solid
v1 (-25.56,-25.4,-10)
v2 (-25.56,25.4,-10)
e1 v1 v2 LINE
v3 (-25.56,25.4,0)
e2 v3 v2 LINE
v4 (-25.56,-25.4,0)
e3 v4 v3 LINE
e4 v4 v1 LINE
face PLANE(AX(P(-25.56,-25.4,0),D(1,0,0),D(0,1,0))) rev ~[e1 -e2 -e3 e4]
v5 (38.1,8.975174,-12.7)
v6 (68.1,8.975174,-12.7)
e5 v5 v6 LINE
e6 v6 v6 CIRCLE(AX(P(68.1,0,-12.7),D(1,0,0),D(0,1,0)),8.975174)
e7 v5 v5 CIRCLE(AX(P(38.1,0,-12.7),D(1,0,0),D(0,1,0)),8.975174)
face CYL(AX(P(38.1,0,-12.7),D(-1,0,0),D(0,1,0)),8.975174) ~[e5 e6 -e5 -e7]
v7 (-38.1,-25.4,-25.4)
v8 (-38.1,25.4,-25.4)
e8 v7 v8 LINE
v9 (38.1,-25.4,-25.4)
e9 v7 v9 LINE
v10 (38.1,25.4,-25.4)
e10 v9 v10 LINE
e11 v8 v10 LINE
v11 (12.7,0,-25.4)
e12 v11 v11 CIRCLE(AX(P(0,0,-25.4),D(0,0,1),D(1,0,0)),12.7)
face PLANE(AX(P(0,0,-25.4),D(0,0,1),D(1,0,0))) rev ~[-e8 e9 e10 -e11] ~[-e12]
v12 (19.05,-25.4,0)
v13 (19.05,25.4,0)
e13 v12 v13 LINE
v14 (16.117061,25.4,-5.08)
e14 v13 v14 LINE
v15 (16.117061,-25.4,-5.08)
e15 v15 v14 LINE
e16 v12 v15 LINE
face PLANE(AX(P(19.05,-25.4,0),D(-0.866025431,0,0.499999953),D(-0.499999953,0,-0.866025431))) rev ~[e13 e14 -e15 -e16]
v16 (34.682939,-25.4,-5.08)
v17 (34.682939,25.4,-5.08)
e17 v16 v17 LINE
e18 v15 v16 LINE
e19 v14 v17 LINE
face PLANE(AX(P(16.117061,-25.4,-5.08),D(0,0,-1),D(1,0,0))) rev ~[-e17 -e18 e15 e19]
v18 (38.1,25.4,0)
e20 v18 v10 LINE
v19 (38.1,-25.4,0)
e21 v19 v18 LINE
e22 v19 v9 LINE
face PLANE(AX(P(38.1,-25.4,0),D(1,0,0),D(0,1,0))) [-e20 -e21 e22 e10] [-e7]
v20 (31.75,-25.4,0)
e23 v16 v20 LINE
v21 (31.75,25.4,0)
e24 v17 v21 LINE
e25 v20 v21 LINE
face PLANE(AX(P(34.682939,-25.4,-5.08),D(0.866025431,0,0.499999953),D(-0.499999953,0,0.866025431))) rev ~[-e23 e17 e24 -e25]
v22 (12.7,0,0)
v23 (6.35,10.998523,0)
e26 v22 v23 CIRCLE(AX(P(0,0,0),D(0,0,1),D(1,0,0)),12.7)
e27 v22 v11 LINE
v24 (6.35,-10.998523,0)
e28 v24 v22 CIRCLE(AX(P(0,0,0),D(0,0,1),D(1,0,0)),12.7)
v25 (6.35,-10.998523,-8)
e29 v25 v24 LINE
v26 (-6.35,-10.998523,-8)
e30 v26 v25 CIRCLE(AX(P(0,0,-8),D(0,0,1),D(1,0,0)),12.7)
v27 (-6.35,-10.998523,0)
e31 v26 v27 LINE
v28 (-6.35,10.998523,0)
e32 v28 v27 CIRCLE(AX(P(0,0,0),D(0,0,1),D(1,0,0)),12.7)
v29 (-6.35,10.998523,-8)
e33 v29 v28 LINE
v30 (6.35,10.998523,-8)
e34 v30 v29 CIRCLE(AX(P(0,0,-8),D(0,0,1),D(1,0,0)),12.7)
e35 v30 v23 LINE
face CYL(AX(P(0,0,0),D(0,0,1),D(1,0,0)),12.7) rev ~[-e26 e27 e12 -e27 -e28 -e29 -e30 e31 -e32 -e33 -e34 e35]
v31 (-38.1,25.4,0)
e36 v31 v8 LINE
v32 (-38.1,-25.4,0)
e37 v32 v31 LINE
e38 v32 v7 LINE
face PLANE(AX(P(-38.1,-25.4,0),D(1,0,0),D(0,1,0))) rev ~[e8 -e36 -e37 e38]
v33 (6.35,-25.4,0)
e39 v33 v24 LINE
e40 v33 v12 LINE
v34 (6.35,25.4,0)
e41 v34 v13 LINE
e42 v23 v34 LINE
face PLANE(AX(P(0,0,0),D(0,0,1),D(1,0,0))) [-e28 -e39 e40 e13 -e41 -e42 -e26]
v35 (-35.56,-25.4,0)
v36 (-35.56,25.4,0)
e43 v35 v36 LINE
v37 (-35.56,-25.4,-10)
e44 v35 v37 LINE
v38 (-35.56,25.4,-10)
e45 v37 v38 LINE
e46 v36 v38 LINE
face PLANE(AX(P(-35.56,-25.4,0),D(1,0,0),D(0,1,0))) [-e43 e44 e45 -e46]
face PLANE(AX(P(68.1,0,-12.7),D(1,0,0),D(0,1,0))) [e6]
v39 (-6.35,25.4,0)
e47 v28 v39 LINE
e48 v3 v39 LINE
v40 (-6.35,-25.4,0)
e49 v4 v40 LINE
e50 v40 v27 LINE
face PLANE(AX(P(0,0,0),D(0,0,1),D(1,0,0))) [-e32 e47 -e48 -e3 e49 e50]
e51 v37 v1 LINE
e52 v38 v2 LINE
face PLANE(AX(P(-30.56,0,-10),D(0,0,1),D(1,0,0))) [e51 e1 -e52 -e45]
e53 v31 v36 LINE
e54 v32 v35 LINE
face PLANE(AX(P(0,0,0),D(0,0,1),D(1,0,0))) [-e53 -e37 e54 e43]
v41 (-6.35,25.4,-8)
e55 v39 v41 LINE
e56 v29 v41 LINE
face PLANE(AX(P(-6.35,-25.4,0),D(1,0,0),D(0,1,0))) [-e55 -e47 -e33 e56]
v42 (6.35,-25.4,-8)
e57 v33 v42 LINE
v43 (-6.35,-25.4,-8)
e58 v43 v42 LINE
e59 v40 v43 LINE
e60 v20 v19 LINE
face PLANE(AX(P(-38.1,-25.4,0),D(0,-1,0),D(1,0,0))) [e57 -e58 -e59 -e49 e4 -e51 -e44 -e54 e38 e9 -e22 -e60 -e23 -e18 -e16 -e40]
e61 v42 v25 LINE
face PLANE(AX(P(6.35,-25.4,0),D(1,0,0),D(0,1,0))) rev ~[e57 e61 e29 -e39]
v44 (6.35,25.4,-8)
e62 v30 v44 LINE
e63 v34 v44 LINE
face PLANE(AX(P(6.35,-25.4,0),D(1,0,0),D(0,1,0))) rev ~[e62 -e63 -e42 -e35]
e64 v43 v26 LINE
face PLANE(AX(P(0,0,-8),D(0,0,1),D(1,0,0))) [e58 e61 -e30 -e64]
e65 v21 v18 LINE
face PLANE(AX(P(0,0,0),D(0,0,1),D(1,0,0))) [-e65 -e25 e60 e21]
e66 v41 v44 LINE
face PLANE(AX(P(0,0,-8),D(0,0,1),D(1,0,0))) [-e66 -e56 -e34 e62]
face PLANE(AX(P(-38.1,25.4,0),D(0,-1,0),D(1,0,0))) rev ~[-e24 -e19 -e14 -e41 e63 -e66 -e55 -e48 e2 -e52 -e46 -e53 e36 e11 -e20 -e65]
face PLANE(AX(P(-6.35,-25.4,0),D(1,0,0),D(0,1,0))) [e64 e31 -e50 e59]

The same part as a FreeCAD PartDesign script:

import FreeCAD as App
import Part
import Sketcher

V = App.Vector
Q = App.Units.Quantity


def add_polygon(sketch, points):
    """Adds a closed chain of lines whose ends are joined by coincident constraints."""
    first, n = sketch.GeometryCount, len(points)
    for a, b in zip(points, points[1:] + points[:1]):
        sketch.addGeometry(Part.LineSegment(App.Vector(*a, 0), App.Vector(*b, 0)), False)
    for i in range(n):
        sketch.addConstraint(Sketcher.Constraint("Coincident", first + i, 2, first + (i + 1) % n, 1))

doc = App.newDocument("Part")
body = doc.addObject("PartDesign::Body", "Body")

# Sketch on XY plane
sketch1 = body.newObject("Sketcher::SketchObject", "Sketch")
sketch1.AttachmentSupport = (doc.getObject("XY_Plane"), [""])
sketch1.MapMode = "FlatFace"
add_polygon(sketch1, [(-38.1, 25.4), (-38.1, -25.4), (38.1, -25.4), (38.1, 25.4)])  # lines 0-3
sketch1.addGeometry(Part.Circle(V(0, 0, 0), V(0, 0, 1), 12.7), False)  # 4
sketch1.addConstraint([
    Sketcher.Constraint("Vertical", 0),
    Sketcher.Constraint("Horizontal", 1),
    Sketcher.Constraint("Vertical", 2),
    Sketcher.Constraint("Horizontal", 3),
    Sketcher.Constraint("Coincident", 4, 3, -1, 1),
    Sketcher.Constraint("Symmetric", 0, 2, 2, 2, -1, 1),
    Sketcher.Constraint("Diameter", 4, Q("1 in")),
    Sketcher.Constraint("DistanceX", 1, 1, 1, 2, Q("3 in")),
    Sketcher.Constraint("DistanceY", 0, 2, 0, 1, Q("2 in")),
])
pad1 = body.newObject("PartDesign::Pad", "Pad")
pad1.Profile = sketch1
pad1.Length = Q("1 in")
pad1.Reversed = True

# Sketch on XY plane
sketch2 = body.newObject("Sketcher::SketchObject", "Sketch001")
sketch2.AttachmentSupport = (doc.getObject("XY_Plane"), [""])
sketch2.MapMode = "FlatFace"
add_polygon(sketch2, [(-35.56, 25.4), (-35.56, -25.4), (-25.56, -25.4), (-25.56, 25.4)])  # lines 0-3
sketch2.addConstraint([
    Sketcher.Constraint("Vertical", 0),
    Sketcher.Constraint("Horizontal", 1),
    Sketcher.Constraint("Vertical", 2),
    Sketcher.Constraint("Horizontal", 3),
    Sketcher.Constraint("DistanceY", 0, 2, 0, 1, Q("2 in")),
    Sketcher.Constraint("DistanceY", 0, 2, -1, 1, Q("1 in")),
    Sketcher.Constraint("DistanceX", 0, 2, -1, 1, Q("1.4 in")),
    Sketcher.Constraint("DistanceX", 1, 1, 1, 2, Q("10 mm")),
])
pocket1 = body.newObject("PartDesign::Pocket", "Pocket")
pocket1.Profile = sketch2
pocket1.Length = 10

# Sketch on XY plane
sketch3 = body.newObject("Sketcher::SketchObject", "Sketch002")
sketch3.AttachmentSupport = (doc.getObject("XY_Plane"), [""])
sketch3.MapMode = "FlatFace"
add_polygon(sketch3, [(-6.35, 25.4), (-6.35, -25.4), (6.35, -25.4), (6.35, 25.4)])  # lines 0-3
sketch3.addConstraint([
    Sketcher.Constraint("Vertical", 0),
    Sketcher.Constraint("Horizontal", 1),
    Sketcher.Constraint("Vertical", 2),
    Sketcher.Constraint("Horizontal", 3),
    Sketcher.Constraint("Symmetric", 0, 2, 2, 2, -1, 1),
    Sketcher.Constraint("DistanceY", 0, 2, 0, 1, Q("2 in")),
    Sketcher.Constraint("DistanceX", 1, 1, 1, 2, Q("0.5 in")),
])
pocket2 = body.newObject("PartDesign::Pocket", "Pocket001")
pocket2.Profile = sketch3
pocket2.Length = 8

# Sketch on YZ plane
sketch4 = body.newObject("Sketcher::SketchObject", "Sketch003")
sketch4.AttachmentSupport = (doc.getObject("YZ_Plane"), [""])
sketch4.MapMode = "FlatFace"
sketch4.AttachmentOffset = App.Placement(V(0, 0, 1.5 * 25.4), App.Rotation())
sketch4.addGeometry(Part.Circle(V(0, -12.7, 0), V(0, 0, 1), 8.975174), False)
sketch4.addConstraint([
    Sketcher.Constraint("PointOnObject", 0, 3, -2),
    Sketcher.Constraint("DistanceY", 0, 3, -1, 1, Q("0.5 in")),
    Sketcher.Constraint("Diameter", 0, Q("17.950348 mm")),
])
pad2 = body.newObject("PartDesign::Pad", "Pad001")
pad2.Profile = sketch4
pad2.Length = 30

# Sketch on XZ plane
sketch5 = body.newObject("Sketcher::SketchObject", "Sketch004")
sketch5.AttachmentSupport = (doc.getObject("XZ_Plane"), [""])
sketch5.MapMode = "FlatFace"
sketch5.AttachmentOffset = App.Placement(V(0, 0, 1 * 25.4), App.Rotation())
add_polygon(sketch5, [(31.75, 0), (19.05, 0), (16.117061, -5.08), (34.682939, -5.08)])  # lines 0-3
sketch5.addConstraint([
    Sketcher.Constraint("Horizontal", 0),
    Sketcher.Constraint("Horizontal", 2),
    Sketcher.Constraint("PointOnObject", 0, 2, -1),
    Sketcher.Constraint("Equal", 1, 3),
    Sketcher.Constraint("DistanceX", 0, 2, 0, 1, Q("0.5 in")),
    Sketcher.Constraint("Angle", 1, Q("-119.999997 deg")),
    Sketcher.Constraint("DistanceY", 1, 2, -1, 1, Q("0.2 in")),
    Sketcher.Constraint("DistanceX", -1, 1, 0, 2, Q("0.75 in")),
])
pocket3 = body.newObject("PartDesign::Pocket", "Pocket002")
pocket3.Profile = sketch5
pocket3.Length = Q("2 in")

doc.recompute()
